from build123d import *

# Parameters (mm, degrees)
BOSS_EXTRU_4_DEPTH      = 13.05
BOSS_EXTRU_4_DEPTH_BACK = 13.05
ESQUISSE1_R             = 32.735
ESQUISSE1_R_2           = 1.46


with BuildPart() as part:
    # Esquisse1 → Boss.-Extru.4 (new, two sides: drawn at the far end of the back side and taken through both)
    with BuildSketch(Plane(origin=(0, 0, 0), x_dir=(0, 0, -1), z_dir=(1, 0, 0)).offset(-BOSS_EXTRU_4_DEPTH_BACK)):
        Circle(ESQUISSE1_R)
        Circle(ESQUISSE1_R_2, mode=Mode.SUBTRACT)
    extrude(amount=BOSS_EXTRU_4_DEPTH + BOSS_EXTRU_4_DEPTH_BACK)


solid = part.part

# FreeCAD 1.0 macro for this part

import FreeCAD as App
import Part
import Sketcher
Q = App.Units.Quantity

doc = App.newDocument("Part")
body = doc.addObject("PartDesign::Body", "Body")

sketch1 = body.newObject("Sketcher::SketchObject", "Sketch")
sketch1.AttachmentSupport = (doc.getObject("YZ_Plane"), [""])
sketch1.MapMode = "FlatFace"
sketch1.addGeometry(Part.Circle(App.Vector(0, 0, 0), App.Vector(0, 0, 1), 32.7), False)
sketch1.addGeometry(Part.Circle(App.Vector(0, 0, 0), App.Vector(0, 0, 1), 1.5), False)
sketch1.addConstraint(Sketcher.Constraint("Coincident", 0, 3, -1, 1))
sketch1.addConstraint(Sketcher.Constraint("Coincident", 1, 3, -1, 1))
sketch1.addConstraint(Sketcher.Constraint("Diameter", 0, Q("65.47 mm")))
sketch1.addConstraint(Sketcher.Constraint("Diameter", 1, Q("2.92 mm")))
pad1 = body.newObject("PartDesign::Pad", "Pad")
pad1.Profile = sketch1
pad1.Type = "TwoLengths"
pad1.Length = 13.05
pad1.Length2 = 13.05

doc.recompute()
